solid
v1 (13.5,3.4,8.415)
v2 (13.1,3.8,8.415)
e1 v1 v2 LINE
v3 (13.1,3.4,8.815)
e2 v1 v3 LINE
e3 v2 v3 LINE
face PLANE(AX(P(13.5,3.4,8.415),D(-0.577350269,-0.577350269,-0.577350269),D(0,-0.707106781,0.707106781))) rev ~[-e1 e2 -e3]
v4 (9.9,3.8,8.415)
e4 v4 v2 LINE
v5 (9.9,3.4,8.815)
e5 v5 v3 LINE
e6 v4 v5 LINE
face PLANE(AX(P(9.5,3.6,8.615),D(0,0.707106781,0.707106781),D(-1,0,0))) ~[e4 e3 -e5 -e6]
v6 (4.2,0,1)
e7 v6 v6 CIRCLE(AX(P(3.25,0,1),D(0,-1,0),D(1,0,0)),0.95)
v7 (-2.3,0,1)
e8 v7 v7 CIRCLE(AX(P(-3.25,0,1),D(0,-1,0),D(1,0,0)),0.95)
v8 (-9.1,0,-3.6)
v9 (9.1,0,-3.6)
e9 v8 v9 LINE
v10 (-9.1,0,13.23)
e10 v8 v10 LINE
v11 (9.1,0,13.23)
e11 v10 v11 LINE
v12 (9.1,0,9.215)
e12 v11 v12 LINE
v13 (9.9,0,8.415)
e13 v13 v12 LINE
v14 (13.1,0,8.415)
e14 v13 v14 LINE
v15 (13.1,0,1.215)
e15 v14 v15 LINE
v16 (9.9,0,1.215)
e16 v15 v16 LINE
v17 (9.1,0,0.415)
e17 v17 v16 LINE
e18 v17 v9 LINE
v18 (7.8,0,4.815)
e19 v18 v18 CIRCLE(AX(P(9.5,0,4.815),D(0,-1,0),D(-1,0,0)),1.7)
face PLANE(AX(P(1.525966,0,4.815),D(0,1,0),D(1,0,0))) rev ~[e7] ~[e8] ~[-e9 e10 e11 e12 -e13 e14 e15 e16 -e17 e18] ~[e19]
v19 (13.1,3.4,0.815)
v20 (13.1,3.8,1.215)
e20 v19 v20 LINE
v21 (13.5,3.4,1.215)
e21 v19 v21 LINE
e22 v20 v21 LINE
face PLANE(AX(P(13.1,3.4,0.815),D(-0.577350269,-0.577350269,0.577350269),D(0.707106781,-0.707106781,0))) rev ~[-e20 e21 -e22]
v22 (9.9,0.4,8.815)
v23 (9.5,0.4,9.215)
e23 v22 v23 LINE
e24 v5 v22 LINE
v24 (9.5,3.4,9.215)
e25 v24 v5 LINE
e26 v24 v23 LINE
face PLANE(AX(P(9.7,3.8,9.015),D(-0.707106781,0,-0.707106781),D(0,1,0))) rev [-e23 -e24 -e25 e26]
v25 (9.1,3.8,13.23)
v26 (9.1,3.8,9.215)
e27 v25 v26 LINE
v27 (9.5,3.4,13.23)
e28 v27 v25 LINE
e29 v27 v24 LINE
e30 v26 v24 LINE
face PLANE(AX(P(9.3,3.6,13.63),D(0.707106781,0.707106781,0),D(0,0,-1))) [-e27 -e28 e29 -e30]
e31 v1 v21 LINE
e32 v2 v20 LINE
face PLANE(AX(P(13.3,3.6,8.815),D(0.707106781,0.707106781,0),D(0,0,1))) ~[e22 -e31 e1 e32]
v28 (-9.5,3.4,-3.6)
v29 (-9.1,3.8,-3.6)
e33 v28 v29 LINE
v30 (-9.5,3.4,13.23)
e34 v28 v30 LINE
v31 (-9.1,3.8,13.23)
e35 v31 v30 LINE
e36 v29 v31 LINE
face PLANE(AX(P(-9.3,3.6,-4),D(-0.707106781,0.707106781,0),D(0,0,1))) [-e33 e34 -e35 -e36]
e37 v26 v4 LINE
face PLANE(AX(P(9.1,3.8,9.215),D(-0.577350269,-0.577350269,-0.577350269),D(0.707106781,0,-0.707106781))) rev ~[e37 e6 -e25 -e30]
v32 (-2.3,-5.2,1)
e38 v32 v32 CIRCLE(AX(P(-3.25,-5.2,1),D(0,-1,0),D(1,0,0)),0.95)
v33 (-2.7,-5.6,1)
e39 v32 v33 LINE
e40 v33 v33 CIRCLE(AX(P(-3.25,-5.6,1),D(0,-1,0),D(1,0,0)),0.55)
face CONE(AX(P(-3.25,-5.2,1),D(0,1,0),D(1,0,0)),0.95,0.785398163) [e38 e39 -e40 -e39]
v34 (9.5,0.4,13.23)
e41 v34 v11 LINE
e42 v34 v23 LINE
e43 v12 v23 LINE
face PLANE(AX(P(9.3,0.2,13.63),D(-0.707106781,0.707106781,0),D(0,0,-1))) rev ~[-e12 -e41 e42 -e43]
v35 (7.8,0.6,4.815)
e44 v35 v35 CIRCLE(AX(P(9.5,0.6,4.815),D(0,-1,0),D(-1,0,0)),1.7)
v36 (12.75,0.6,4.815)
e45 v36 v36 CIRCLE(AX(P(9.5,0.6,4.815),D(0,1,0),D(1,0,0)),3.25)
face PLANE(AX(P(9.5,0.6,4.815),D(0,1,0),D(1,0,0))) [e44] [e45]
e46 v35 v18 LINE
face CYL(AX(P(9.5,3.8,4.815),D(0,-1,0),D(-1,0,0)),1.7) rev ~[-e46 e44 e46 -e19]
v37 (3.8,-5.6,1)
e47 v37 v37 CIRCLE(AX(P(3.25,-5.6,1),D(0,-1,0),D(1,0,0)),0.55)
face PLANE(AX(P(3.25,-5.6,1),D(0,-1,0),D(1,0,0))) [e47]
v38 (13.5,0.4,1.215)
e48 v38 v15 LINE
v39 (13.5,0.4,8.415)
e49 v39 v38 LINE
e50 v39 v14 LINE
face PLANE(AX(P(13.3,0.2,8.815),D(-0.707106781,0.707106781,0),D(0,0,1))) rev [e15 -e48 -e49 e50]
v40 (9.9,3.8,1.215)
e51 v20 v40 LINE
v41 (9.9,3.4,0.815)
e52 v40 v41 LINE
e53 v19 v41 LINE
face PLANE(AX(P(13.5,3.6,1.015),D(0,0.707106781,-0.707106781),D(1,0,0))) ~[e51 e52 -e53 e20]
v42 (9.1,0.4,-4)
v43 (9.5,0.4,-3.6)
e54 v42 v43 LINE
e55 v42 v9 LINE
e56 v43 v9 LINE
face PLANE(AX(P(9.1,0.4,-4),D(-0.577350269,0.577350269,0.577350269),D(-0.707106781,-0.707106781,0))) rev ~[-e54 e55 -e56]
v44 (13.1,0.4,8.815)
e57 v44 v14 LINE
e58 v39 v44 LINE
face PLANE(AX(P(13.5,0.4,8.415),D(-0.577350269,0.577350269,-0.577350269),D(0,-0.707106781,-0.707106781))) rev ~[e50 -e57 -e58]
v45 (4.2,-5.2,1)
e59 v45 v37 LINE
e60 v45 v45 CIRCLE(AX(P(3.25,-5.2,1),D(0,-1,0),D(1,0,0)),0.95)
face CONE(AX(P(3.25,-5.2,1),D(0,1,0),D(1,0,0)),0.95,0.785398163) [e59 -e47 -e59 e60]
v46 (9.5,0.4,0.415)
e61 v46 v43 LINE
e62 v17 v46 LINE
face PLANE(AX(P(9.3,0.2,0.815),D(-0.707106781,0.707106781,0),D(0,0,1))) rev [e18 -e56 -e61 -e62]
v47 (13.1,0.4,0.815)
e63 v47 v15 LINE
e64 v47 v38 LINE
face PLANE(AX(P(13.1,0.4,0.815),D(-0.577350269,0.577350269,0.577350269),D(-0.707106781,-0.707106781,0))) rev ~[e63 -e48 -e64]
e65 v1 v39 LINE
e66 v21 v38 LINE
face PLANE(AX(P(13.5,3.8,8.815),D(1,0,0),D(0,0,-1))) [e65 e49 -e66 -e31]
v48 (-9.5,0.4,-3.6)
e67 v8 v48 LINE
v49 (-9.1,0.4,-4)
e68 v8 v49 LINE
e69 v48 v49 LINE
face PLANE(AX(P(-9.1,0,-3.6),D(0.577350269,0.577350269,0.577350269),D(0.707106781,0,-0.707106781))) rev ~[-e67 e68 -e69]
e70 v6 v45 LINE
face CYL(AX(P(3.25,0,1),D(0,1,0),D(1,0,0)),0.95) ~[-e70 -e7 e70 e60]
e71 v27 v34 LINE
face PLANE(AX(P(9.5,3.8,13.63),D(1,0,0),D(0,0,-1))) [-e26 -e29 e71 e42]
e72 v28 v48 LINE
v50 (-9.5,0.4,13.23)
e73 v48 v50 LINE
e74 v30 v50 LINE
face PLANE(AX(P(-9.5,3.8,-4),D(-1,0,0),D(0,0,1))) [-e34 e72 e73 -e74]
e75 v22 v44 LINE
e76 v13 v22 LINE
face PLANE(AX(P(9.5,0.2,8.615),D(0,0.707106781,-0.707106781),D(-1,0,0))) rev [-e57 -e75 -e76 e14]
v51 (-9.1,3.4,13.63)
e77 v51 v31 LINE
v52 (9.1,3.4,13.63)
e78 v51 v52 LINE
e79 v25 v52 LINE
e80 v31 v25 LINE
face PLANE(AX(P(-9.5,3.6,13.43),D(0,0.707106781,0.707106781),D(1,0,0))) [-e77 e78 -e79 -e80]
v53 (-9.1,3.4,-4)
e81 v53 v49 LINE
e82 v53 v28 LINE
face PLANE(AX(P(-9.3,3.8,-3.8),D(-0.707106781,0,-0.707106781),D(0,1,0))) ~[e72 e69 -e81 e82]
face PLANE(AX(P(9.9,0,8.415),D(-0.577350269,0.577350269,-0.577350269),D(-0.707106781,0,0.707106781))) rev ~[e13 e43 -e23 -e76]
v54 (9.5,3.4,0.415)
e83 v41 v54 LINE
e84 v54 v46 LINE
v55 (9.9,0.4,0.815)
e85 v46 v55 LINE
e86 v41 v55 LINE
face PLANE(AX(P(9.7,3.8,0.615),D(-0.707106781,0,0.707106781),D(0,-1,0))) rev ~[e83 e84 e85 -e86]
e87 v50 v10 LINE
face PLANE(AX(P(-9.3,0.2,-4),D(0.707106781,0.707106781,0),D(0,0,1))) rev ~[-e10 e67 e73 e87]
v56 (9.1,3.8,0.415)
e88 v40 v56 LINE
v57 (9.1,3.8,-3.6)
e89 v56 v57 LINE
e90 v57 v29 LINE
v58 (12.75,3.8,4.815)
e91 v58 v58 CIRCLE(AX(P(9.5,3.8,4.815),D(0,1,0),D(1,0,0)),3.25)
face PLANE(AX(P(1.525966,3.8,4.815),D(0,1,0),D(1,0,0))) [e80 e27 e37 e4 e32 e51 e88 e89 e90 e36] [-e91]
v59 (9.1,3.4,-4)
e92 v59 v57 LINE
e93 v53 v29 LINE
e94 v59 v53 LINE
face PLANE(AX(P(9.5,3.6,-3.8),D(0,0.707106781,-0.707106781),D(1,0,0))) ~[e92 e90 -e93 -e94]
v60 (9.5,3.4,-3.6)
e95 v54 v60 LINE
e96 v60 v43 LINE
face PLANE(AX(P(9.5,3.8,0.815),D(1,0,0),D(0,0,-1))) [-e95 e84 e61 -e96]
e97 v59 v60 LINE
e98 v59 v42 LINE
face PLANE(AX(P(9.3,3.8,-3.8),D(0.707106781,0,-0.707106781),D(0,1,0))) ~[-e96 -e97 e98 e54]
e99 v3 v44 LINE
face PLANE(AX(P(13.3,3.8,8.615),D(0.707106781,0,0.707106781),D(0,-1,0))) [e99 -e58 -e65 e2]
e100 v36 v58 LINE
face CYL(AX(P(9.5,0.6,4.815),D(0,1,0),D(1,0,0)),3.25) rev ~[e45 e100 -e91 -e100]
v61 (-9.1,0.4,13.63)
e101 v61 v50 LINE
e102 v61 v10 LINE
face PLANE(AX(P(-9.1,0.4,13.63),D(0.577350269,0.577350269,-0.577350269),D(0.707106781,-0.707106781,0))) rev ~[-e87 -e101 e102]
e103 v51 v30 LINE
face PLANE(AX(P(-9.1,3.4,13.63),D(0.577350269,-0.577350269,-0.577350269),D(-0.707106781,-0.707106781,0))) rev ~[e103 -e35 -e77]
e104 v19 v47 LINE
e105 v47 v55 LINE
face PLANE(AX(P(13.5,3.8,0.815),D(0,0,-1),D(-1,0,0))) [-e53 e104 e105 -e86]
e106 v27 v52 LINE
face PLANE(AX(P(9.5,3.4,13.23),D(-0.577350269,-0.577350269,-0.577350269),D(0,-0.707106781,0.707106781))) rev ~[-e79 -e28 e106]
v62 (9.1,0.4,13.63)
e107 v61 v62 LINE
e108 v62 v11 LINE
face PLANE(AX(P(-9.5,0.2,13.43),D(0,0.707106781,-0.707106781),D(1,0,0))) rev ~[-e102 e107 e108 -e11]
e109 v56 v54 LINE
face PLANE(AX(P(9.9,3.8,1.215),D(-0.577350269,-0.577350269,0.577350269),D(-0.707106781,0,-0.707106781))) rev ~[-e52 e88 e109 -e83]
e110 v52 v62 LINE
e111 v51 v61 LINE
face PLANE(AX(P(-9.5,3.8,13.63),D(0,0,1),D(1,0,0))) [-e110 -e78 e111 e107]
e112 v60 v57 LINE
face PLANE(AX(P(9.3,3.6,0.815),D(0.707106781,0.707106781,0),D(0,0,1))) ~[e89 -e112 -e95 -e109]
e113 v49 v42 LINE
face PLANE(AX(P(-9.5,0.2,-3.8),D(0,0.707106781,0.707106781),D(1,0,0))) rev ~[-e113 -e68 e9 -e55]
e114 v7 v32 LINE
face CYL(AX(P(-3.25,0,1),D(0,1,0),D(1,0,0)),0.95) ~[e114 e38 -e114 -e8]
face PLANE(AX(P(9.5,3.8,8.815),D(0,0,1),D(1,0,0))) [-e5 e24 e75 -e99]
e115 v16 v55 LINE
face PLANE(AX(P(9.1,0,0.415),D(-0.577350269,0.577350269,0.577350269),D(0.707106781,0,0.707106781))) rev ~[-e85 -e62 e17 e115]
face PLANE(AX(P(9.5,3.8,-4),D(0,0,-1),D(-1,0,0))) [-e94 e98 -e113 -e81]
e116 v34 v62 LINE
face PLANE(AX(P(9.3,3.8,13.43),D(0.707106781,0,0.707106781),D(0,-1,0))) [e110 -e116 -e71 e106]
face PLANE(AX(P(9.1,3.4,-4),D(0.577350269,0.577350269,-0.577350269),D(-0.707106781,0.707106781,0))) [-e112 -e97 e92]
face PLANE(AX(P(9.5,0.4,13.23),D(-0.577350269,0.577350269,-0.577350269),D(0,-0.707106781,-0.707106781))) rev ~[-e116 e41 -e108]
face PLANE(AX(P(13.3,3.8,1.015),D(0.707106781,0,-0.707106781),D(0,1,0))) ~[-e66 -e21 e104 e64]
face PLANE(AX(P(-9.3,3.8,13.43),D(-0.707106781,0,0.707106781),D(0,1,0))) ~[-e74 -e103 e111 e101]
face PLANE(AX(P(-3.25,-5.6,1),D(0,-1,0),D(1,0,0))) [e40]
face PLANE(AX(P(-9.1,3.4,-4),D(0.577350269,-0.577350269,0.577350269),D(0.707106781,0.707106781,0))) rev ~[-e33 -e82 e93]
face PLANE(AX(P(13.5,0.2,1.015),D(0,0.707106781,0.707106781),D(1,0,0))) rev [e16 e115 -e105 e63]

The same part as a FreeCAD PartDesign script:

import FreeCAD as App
import Part
import Sketcher


def edges_at(feature, points):
    """Names of the edges that pass closest to the given points."""
    edges = feature.Shape.Edges
    near = lambda p: min(range(len(edges)), key=lambda i: edges[i].distToShape(Part.Vertex(*p))[0])
    return sorted({f"Edge{near(p) + 1}" for p in points})


def add_polygon(sketch, points):
    """Adds a closed chain of lines whose ends are joined by coincident constraints."""
    first, n = sketch.GeometryCount, len(points)
    for a, b in zip(points, points[1:] + points[:1]):
        sketch.addGeometry(Part.LineSegment(App.Vector(*a, 0), App.Vector(*b, 0)), False)
    for i in range(n):
        sketch.addConstraint(Sketcher.Constraint("Coincident", first + i, 2, first + (i + 1) % n, 1))

doc = App.newDocument("Part")
body = doc.addObject("PartDesign::Body", "Body")

sketch1 = body.newObject("Sketcher::SketchObject", "Sketch")
sketch1.AttachmentSupport = (doc.getObject("XZ_Plane"), [""])
sketch1.MapMode = "FlatFace"
add_polygon(sketch1, [(-6.5, -4), (-6.5, 4), (6.5, 4), (6.5, -4)])
sketch1.addConstraint(Sketcher.Constraint("Vertical", 0))
sketch1.addConstraint(Sketcher.Constraint("Horizontal", 1))
sketch1.addConstraint(Sketcher.Constraint("Vertical", 2))
sketch1.addConstraint(Sketcher.Constraint("Horizontal", 3))
sketch1.addConstraint(Sketcher.Constraint("Symmetric", 0, 2, 2, 2, -1, 1))
sketch1.addConstraint(Sketcher.Constraint("DistanceX", 1, 1, 1, 2, 13.0))
sketch1.addConstraint(Sketcher.Constraint("DistanceY", 0, 1, 0, 2, 8.0))
pad1 = body.newObject("PartDesign::Pad", "Pad")
pad1.Profile = sketch1
pad1.Length = 3.8
pad1.Reversed = True

sketch2 = body.newObject("Sketcher::SketchObject", "Sketch001")
sketch2.AttachmentSupport = (doc.getObject("XZ_Plane"), [""])
sketch2.MapMode = "FlatFace"
sketch2.addGeometry(Part.Circle(App.Vector(3.25, 1, 0), App.Vector(0, 0, 1), 0.95), False)
sketch2.addGeometry(Part.Circle(App.Vector(-3.25, 1, 0), App.Vector(0, 0, 1), 0.95), False)
sketch2.addConstraint(Sketcher.Constraint("Equal", 0, 1))
sketch2.addConstraint(Sketcher.Constraint("Symmetric", 0, 3, 1, 3, -2))
sketch2.addConstraint(Sketcher.Constraint("Diameter", 0, 1.9))
sketch2.addConstraint(Sketcher.Constraint("DistanceY", -1, 1, 0, 3, 1.0))
sketch2.addConstraint(Sketcher.Constraint("DistanceX", 1, 3, 0, 3, 6.5))
pad2 = body.newObject("PartDesign::Pad", "Pad001")
pad2.Profile = sketch2
pad2.Length = 5.6

sketch3 = body.newObject("Sketcher::SketchObject", "Sketch002")
sketch3.AttachmentSupport = (doc.getObject("XZ_Plane"), [""])
sketch3.MapMode = "FlatFace"
sketch3.AttachmentOffset = App.Placement(App.Vector(0, 0, -3.8), App.Rotation())
add_polygon(sketch3, [(-9.5, 13.63), (9.5, 13.63), (9.5, 8.815), (13.5, 8.815), (13.5, 0.815), (9.5, 0.815), (9.5, -4), (-9.5, -4)])
sketch3.addConstraint(Sketcher.Constraint("Horizontal", 0))
sketch3.addConstraint(Sketcher.Constraint("Vertical", 1))
sketch3.addConstraint(Sketcher.Constraint("Horizontal", 2))
sketch3.addConstraint(Sketcher.Constraint("Vertical", 3))
sketch3.addConstraint(Sketcher.Constraint("Horizontal", 4))
sketch3.addConstraint(Sketcher.Constraint("Vertical", 5))
sketch3.addConstraint(Sketcher.Constraint("Horizontal", 6))
sketch3.addConstraint(Sketcher.Constraint("Vertical", 7))
sketch3.addConstraint(Sketcher.Constraint("Vertical", 1, 2, 4, 2))
sketch3.addConstraint(Sketcher.Constraint("Equal", 1, 5))
sketch3.addConstraint(Sketcher.Constraint("DistanceX", 0, 1, 0, 2, 19.0))
sketch3.addConstraint(Sketcher.Constraint("DistanceX", 2, 1, 2, 2, 4.0))
sketch3.addConstraint(Sketcher.Constraint("DistanceY", 3, 2, 3, 1, 8.0))
sketch3.addConstraint(Sketcher.Constraint("DistanceY", 5, 2, -1, 1, 4.0))
sketch3.addConstraint(Sketcher.Constraint("DistanceY", 7, 1, 7, 2, 17.63))
sketch3.addConstraint(Sketcher.Constraint("DistanceX", -1, 1, 0, 2, 9.5))
pad3 = body.newObject("PartDesign::Pad", "Pad002")
pad3.Profile = sketch3
pad3.Length = 3.8

sketch4 = body.newObject("Sketcher::SketchObject", "Sketch003")
sketch4.AttachmentSupport = (doc.getObject("XZ_Plane"), [""])
sketch4.MapMode = "FlatFace"
sketch4.AttachmentOffset = App.Placement(App.Vector(0, 0, -3.8), App.Rotation())
sketch4.addGeometry(Part.Circle(App.Vector(9.5, 4.815, 0), App.Vector(0, 0, 1), 1.7), False)
sketch4.addConstraint(Sketcher.Constraint("Diameter", 0, 3.4))
sketch4.addConstraint(Sketcher.Constraint("DistanceX", -1, 1, 0, 3, 9.5))
sketch4.addConstraint(Sketcher.Constraint("DistanceY", -1, 1, 0, 3, 4.815))
doc.recompute()
hole = body.newObject("PartDesign::Hole", "Hole")
hole.Profile = sketch4
hole.ThreadType = "None"
hole.Diameter = 3.4
hole.DepthType = "ThroughAll"
hole.HoleCutType = "Counterbore"
hole.HoleCutDiameter = 6.5
hole.HoleCutDepth = 3.2
hole.Reversed = True
doc.recompute()

chamfer = body.newObject("PartDesign::Chamfer", "Chamfer")
chamfer.Base = (hole, edges_at(hole, [
    (2.3, -5.6, 1),
    (-4.2, -5.6, 1),
    (-9.5, 3.8, 4.815),
    (0, 3.8, 13.63),
    (9.5, 3.8, 11.223),
    (11.5, 3.8, 8.815),
    (13.5, 3.8, 4.815),
    (11.5, 3.8, 0.815),
    (9.5, 3.8, -1.593),
    (-9.5, 1.9, -4),
    (-9.5, 0, 4.815),
    (-9.5, 1.9, 13.63),
    (0, 0, 13.63),
    (9.5, 1.9, 13.63),
    (9.5, 0, 11.223),
    (9.5, 1.9, 8.815),
    (11.5, 0, 8.815),
    (13.5, 1.9, 8.815),
    (13.5, 0, 4.815),
    (13.5, 1.9, 0.815),
    (11.5, 0, 0.815),
    (9.5, 1.9, 0.815),
    (9.5, 0, -1.593),
    (9.5, 1.9, -4),
    (0, 0, -4),
    (0, 3.8, -4),
]))
chamfer.Size = 0.4

doc.recompute()
